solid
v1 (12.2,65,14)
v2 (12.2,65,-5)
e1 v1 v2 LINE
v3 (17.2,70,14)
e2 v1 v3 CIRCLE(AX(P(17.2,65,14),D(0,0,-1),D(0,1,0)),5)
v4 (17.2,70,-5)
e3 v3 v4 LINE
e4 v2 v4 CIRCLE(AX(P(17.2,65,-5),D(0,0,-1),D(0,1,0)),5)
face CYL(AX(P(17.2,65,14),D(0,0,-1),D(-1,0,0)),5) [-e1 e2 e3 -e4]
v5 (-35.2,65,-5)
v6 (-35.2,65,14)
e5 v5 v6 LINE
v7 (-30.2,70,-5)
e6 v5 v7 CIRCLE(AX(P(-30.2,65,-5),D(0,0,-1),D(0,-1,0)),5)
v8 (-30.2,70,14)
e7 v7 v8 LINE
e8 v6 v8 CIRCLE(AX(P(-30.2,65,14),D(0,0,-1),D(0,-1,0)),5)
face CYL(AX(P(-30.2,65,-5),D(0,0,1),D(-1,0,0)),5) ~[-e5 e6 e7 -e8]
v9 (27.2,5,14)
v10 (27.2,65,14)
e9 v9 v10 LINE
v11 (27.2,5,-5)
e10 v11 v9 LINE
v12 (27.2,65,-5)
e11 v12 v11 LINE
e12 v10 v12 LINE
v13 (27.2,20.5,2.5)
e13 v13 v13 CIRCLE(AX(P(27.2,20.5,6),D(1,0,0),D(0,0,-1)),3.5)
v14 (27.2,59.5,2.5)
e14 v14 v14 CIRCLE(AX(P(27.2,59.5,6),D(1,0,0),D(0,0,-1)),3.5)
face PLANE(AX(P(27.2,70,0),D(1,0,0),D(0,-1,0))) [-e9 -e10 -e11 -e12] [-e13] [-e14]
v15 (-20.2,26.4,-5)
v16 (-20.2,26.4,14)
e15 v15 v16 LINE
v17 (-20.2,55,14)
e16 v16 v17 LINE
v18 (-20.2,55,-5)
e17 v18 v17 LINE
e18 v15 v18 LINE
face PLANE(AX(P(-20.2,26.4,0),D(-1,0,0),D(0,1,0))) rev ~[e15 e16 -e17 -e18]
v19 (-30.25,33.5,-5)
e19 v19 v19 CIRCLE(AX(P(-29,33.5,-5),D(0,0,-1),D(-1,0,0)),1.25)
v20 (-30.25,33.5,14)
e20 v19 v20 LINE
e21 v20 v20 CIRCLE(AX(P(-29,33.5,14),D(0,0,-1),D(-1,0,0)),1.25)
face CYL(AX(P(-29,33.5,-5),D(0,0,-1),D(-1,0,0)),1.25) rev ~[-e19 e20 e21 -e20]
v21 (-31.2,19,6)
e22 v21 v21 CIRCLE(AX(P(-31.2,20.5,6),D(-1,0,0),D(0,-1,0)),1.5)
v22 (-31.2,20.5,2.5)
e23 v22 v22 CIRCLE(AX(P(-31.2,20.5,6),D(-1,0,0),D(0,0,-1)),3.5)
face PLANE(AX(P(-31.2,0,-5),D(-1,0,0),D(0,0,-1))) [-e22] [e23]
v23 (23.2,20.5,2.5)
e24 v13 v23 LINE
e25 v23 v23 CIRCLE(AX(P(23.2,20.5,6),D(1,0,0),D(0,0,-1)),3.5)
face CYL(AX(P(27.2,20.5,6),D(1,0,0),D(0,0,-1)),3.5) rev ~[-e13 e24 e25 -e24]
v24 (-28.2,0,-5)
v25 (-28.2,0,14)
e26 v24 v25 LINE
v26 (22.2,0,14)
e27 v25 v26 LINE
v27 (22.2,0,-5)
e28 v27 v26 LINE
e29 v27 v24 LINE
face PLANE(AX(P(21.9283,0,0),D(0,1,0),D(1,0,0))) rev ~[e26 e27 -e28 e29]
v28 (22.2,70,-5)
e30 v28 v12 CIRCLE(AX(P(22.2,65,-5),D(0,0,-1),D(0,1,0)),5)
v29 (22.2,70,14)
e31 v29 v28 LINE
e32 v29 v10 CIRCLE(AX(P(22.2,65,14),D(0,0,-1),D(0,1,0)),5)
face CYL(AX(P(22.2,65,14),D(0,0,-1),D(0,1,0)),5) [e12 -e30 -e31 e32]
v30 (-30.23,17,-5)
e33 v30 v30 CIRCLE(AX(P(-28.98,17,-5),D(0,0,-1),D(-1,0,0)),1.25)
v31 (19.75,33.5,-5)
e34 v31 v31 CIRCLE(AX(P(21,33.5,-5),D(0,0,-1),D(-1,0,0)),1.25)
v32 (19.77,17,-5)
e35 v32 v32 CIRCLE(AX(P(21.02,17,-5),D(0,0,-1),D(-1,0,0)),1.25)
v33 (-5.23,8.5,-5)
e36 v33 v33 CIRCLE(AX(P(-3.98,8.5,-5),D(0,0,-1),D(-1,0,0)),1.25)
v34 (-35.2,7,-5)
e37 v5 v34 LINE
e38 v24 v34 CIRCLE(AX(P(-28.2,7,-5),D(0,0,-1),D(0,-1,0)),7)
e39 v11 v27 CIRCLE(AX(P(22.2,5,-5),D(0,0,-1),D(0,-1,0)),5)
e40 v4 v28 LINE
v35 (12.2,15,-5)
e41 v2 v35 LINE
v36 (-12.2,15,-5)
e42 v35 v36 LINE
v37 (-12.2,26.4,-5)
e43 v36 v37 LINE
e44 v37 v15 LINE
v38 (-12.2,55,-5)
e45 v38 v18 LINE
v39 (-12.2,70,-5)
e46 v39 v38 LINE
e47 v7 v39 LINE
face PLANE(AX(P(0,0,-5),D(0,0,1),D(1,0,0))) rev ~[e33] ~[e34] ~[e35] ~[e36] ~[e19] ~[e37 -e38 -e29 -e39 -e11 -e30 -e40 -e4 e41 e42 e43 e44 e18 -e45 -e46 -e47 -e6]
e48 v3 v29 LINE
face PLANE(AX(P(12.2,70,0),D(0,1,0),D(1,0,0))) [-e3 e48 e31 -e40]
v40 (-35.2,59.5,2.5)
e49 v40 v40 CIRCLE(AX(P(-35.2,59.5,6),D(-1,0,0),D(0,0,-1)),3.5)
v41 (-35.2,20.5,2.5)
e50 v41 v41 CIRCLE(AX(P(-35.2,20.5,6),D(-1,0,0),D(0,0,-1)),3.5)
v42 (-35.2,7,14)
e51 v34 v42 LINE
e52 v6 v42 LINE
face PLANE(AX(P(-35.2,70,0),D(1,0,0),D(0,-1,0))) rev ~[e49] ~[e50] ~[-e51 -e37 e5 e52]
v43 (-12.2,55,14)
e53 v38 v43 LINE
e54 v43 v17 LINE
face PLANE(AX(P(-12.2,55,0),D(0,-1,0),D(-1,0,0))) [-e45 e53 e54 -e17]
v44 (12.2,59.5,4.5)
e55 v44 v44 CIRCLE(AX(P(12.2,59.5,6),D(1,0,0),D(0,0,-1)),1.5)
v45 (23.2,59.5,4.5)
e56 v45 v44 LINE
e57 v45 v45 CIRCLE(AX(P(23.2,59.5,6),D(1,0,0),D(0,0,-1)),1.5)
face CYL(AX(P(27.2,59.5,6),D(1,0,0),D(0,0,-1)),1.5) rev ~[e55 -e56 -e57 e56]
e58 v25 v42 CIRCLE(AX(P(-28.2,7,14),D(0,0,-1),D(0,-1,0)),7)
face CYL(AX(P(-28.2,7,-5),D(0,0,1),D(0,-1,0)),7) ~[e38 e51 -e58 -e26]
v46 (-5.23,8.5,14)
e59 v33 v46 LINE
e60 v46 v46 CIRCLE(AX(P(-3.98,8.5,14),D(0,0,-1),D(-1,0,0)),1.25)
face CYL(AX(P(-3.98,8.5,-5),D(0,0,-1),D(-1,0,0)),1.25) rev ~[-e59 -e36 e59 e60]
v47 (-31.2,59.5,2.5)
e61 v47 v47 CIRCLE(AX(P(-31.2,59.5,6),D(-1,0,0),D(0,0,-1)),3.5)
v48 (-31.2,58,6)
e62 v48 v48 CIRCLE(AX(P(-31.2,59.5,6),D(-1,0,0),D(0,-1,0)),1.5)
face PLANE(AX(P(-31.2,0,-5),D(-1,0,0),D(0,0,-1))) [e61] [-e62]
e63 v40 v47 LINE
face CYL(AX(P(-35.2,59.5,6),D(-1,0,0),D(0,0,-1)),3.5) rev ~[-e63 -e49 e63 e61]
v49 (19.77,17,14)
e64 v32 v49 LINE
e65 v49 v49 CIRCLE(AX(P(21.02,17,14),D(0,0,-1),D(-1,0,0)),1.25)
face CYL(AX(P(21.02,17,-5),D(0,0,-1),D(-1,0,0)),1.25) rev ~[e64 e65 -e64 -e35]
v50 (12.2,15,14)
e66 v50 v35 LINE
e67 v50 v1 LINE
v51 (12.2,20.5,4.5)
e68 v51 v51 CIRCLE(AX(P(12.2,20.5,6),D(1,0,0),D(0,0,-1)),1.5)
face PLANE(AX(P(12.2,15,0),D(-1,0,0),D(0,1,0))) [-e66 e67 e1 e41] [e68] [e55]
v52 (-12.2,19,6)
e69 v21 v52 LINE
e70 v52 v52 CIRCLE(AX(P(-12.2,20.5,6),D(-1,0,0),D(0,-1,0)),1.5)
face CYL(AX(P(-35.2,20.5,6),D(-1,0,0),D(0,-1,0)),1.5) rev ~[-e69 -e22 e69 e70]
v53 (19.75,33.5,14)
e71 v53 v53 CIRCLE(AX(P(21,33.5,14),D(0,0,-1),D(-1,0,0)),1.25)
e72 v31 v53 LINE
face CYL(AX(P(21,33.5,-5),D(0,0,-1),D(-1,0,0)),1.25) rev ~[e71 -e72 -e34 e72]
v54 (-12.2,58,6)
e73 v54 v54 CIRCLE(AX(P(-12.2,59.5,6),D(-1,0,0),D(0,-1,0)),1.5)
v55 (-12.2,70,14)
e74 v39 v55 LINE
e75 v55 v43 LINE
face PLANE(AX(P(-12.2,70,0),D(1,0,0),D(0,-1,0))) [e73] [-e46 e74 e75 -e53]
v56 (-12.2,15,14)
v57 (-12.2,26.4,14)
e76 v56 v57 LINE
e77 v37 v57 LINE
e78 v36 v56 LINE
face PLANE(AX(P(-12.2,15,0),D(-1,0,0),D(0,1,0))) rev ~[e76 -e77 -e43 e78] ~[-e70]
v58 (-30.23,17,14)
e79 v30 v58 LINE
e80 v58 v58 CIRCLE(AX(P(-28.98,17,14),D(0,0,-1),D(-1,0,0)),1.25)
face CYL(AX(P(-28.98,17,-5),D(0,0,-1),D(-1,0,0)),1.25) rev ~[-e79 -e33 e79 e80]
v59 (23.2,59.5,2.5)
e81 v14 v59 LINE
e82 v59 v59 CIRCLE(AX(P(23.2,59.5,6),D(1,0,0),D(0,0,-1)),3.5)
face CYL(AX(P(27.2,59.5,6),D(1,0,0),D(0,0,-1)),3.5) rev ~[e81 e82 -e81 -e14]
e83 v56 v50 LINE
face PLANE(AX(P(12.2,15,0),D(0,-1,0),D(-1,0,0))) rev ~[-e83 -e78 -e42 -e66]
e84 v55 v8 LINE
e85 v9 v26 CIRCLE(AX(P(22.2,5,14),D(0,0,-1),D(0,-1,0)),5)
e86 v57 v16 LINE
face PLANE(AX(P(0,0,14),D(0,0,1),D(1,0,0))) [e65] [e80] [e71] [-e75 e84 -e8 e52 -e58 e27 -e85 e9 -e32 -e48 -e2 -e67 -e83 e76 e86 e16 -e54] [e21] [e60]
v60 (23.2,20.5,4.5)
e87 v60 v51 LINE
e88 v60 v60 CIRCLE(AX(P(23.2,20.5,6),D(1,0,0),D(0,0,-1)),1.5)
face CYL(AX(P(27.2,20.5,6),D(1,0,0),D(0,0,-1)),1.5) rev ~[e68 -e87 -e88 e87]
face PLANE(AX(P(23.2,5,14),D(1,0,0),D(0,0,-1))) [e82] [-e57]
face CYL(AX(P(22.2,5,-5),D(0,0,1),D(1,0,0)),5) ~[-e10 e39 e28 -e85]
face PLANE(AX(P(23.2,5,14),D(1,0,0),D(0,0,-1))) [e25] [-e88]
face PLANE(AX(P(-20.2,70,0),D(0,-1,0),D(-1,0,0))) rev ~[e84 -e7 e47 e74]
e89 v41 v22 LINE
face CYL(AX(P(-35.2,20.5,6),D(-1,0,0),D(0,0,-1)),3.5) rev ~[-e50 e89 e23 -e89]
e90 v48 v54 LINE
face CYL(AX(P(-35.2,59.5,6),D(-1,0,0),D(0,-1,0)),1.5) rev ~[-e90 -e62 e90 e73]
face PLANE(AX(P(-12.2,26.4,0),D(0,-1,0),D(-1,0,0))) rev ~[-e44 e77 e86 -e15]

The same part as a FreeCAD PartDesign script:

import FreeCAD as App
import Part
import Sketcher


def edges_at(feature, points):
    """Names of the edges that pass closest to the given points."""
    edges = feature.Shape.Edges
    near = lambda p: min(range(len(edges)), key=lambda i: edges[i].distToShape(Part.Vertex(*p))[0])
    return sorted({f"Edge{near(p) + 1}" for p in points})


def add_polygon(sketch, points):
    """Adds a closed chain of lines whose ends are joined by coincident constraints."""
    first, n = sketch.GeometryCount, len(points)
    for a, b in zip(points, points[1:] + points[:1]):
        sketch.addGeometry(Part.LineSegment(App.Vector(*a, 0), App.Vector(*b, 0)), False)
    for i in range(n):
        sketch.addConstraint(Sketcher.Constraint("Coincident", first + i, 2, first + (i + 1) % n, 1))

doc = App.newDocument("Part")
body = doc.addObject("PartDesign::Body", "Body")

# Sketch on XY plane
sketch1 = body.newObject("Sketcher::SketchObject", "Sketch")
sketch1.AttachmentSupport = (doc.getObject("XY_Plane"), [""])
sketch1.MapMode = "FlatFace"
add_polygon(sketch1, [(12, 15), (-12, 15), (-12, 26), (-20, 26), (-20, 55), (-12, 55), (-12, 70), (-35, 70), (-35, 0), (27, 0), (27, 70), (12, 70)])  # lines 0-11
sketch1.addConstraint([
    Sketcher.Constraint("Horizontal", 0),
    Sketcher.Constraint("Vertical", 1),
    Sketcher.Constraint("Horizontal", 2),
    Sketcher.Constraint("Vertical", 3),
    Sketcher.Constraint("Horizontal", 4),
    Sketcher.Constraint("Vertical", 5),
    Sketcher.Constraint("Horizontal", 6),
    Sketcher.Constraint("Vertical", 7),
    Sketcher.Constraint("Horizontal", 8),
    Sketcher.Constraint("Vertical", 9),
    Sketcher.Constraint("Horizontal", 10),
    Sketcher.Constraint("Vertical", 11),
    Sketcher.Constraint("Symmetric", 5, 2, 10, 2, -2),
    Sketcher.Constraint("PointOnObject", 7, 2, -1),
    Sketcher.Constraint("Vertical", 1, 2, 4, 2),
    Sketcher.Constraint("Equal", 10, 5),
    Sketcher.Constraint("DistanceX", 2, 2, 2, 1, 8.0),
    Sketcher.Constraint("DistanceX", 6, 2, 6, 1, 23.0),
    Sketcher.Constraint("DistanceX", 10, 2, 10, 1, 15.0),
    Sketcher.Constraint("DistanceY", 7, 2, 7, 1, 70.0),
    Sketcher.Constraint("DistanceY", 1, 1, 1, 2, 11.4),
    Sketcher.Constraint("DistanceY", -1, 1, 0, 2, 15.0),
    Sketcher.Constraint("DistanceX", 0, 2, -1, 1, 12.2),
])
pad1 = body.newObject("PartDesign::Pad", "Pad")
pad1.Profile = sketch1
pad1.Type = "TwoLengths"
pad1.Length = 14
pad1.Length2 = 5

# Sketch on XY plane
sketch2 = body.newObject("Sketcher::SketchObject", "Sketch001")
sketch2.AttachmentSupport = (doc.getObject("XY_Plane"), [""])
sketch2.MapMode = "FlatFace"
sketch2.AttachmentOffset = App.Placement(App.Vector(0, 0, -5), App.Rotation())
sketch2.addGeometry([
    Part.Circle(App.Vector(-29, 17, 0), App.Vector(0, 0, 1), 1.2),  # 0
    Part.Circle(App.Vector(-4, 8.5, 0), App.Vector(0, 0, 1), 1.2),  # 1
    Part.Circle(App.Vector(21, 17, 0), App.Vector(0, 0, 1), 1.2),  # 2
    Part.Circle(App.Vector(-29, 33.5, 0), App.Vector(0, 0, 1), 1.2),  # 3
    Part.Circle(App.Vector(21, 33.5, 0), App.Vector(0, 0, 1), 1.2),  # 4
], False)
sketch2.addConstraint([
    Sketcher.Constraint("Equal", 0, 1),
    Sketcher.Constraint("Equal", 1, 2),
    Sketcher.Constraint("Equal", 2, 3),
    Sketcher.Constraint("Equal", 3, 4),
    Sketcher.Constraint("Horizontal", 0, 3, 2, 3),
    Sketcher.Constraint("Horizontal", 3, 3, 4, 3),
    Sketcher.Constraint("Diameter", 0, 2.5),
    Sketcher.Constraint("DistanceY", -1, 1, 0, 3, 17.0),
    Sketcher.Constraint("DistanceX", 0, 3, 1, 3, 25.0),
    Sketcher.Constraint("DistanceX", 1, 3, 2, 3, 25.0),
    Sketcher.Constraint("DistanceY", 1, 3, 3, 3, 25.0),
    Sketcher.Constraint("DistanceX", 3, 3, 4, 3, 50.0),
    Sketcher.Constraint("DistanceY", -1, 1, 1, 3, 8.5),
    Sketcher.Constraint("DistanceX", 3, 3, -1, 1, 29.0),
    Sketcher.Constraint("DistanceX", 0, 3, -1, 1, 28.98),
])
pocket1 = body.newObject("PartDesign::Pocket", "Pocket")
pocket1.Profile = sketch2
pocket1.Length = 19
pocket1.Reversed = True
doc.recompute()

fillet = body.newObject("PartDesign::Fillet", "Fillet")
fillet.Base = (pocket1, edges_at(pocket1, [
    (27.2, 0, 4.5),
    (-35.2, 70, 4.5),
    (12.2, 70, 4.5),
    (27.2, 70, 4.5),
]))
fillet.Radius = 5

# Sketch on YZ plane
sketch3 = body.newObject("Sketcher::SketchObject", "Sketch002")
sketch3.AttachmentSupport = (doc.getObject("YZ_Plane"), [""])
sketch3.MapMode = "FlatFace"
sketch3.AttachmentOffset = App.Placement(App.Vector(0, 0, -35.2), App.Rotation())
sketch3.addGeometry([
    Part.Circle(App.Vector(20.5, 6, 0), App.Vector(0, 0, 1), 1.5),
    Part.Circle(App.Vector(59.5, 6, 0), App.Vector(0, 0, 1), 1.5),
], False)
sketch3.addConstraint([
    Sketcher.Constraint("Equal", 0, 1),
    Sketcher.Constraint("Horizontal", 0, 3, 1, 3),
    Sketcher.Constraint("Diameter", 0, 3.0),
    Sketcher.Constraint("DistanceY", -1, 1, 0, 3, 6.0),
    Sketcher.Constraint("DistanceX", 0, 3, 1, 3, 39.0),
    Sketcher.Constraint("DistanceX", -1, 1, 0, 3, 20.5),
])
pocket2 = body.newObject("PartDesign::Pocket", "Pocket001")
pocket2.Profile = sketch3
pocket2.Length = 23
pocket2.Reversed = True

# Sketch on YZ plane
sketch4 = body.newObject("Sketcher::SketchObject", "Sketch003")
sketch4.AttachmentSupport = (doc.getObject("YZ_Plane"), [""])
sketch4.MapMode = "FlatFace"
sketch4.AttachmentOffset = App.Placement(App.Vector(0, 0, 27.2), App.Rotation())
sketch4.addGeometry([
    Part.Circle(App.Vector(20.5, 6, 0), App.Vector(0, 0, 1), 1.5),
    Part.Circle(App.Vector(59.5, 6, 0), App.Vector(0, 0, 1), 1.5),
], False)
sketch4.addConstraint([
    Sketcher.Constraint("Equal", 0, 1),
    Sketcher.Constraint("Horizontal", 0, 3, 1, 3),
    Sketcher.Constraint("Diameter", 0, 3.0),
    Sketcher.Constraint("DistanceY", -1, 1, 0, 3, 6.0),
    Sketcher.Constraint("DistanceX", 0, 3, 1, 3, 39.0),
    Sketcher.Constraint("DistanceX", -1, 1, 0, 3, 20.5),
])
pocket3 = body.newObject("PartDesign::Pocket", "Pocket002")
pocket3.Profile = sketch4
pocket3.Length = 15

# Sketch on YZ plane
sketch5 = body.newObject("Sketcher::SketchObject", "Sketch004")
sketch5.AttachmentSupport = (doc.getObject("YZ_Plane"), [""])
sketch5.MapMode = "FlatFace"
sketch5.AttachmentOffset = App.Placement(App.Vector(0, 0, 27.2), App.Rotation())
sketch5.addGeometry([
    Part.Circle(App.Vector(20.5, 6, 0), App.Vector(0, 0, 1), 3.5),
    Part.Circle(App.Vector(59.5, 6, 0), App.Vector(0, 0, 1), 3.5),
], False)
sketch5.addConstraint([
    Sketcher.Constraint("Equal", 0, 1),
    Sketcher.Constraint("Horizontal", 0, 3, 1, 3),
    Sketcher.Constraint("Diameter", 0, 7.0),
    Sketcher.Constraint("DistanceY", -1, 1, 0, 3, 6.0),
    Sketcher.Constraint("DistanceX", 0, 3, 1, 3, 39.0),
    Sketcher.Constraint("DistanceX", -1, 1, 0, 3, 20.5),
])
pocket4 = body.newObject("PartDesign::Pocket", "Pocket003")
pocket4.Profile = sketch5
pocket4.Length = 4

# Sketch on YZ plane
sketch6 = body.newObject("Sketcher::SketchObject", "Sketch005")
sketch6.AttachmentSupport = (doc.getObject("YZ_Plane"), [""])
sketch6.MapMode = "FlatFace"
sketch6.AttachmentOffset = App.Placement(App.Vector(0, 0, -35.2), App.Rotation())
sketch6.addGeometry([
    Part.Circle(App.Vector(20.5, 6, 0), App.Vector(0, 0, 1), 3.5),
    Part.Circle(App.Vector(59.5, 6, 0), App.Vector(0, 0, 1), 3.5),
], False)
sketch6.addConstraint([
    Sketcher.Constraint("Equal", 0, 1),
    Sketcher.Constraint("Horizontal", 0, 3, 1, 3),
    Sketcher.Constraint("Diameter", 0, 7.0),
    Sketcher.Constraint("DistanceY", -1, 1, 0, 3, 6.0),
    Sketcher.Constraint("DistanceX", 0, 3, 1, 3, 39.0),
    Sketcher.Constraint("DistanceX", -1, 1, 0, 3, 20.5),
])
pocket5 = body.newObject("PartDesign::Pocket", "Pocket004")
pocket5.Profile = sketch6
pocket5.Length = 4
pocket5.Reversed = True
doc.recompute()

fillet2 = body.newObject("PartDesign::Fillet", "Fillet001")
fillet2.Base = (pocket5, edges_at(pocket5, [(-35.2, 0, 4.5)]))
fillet2.Radius = 7

doc.recompute()
